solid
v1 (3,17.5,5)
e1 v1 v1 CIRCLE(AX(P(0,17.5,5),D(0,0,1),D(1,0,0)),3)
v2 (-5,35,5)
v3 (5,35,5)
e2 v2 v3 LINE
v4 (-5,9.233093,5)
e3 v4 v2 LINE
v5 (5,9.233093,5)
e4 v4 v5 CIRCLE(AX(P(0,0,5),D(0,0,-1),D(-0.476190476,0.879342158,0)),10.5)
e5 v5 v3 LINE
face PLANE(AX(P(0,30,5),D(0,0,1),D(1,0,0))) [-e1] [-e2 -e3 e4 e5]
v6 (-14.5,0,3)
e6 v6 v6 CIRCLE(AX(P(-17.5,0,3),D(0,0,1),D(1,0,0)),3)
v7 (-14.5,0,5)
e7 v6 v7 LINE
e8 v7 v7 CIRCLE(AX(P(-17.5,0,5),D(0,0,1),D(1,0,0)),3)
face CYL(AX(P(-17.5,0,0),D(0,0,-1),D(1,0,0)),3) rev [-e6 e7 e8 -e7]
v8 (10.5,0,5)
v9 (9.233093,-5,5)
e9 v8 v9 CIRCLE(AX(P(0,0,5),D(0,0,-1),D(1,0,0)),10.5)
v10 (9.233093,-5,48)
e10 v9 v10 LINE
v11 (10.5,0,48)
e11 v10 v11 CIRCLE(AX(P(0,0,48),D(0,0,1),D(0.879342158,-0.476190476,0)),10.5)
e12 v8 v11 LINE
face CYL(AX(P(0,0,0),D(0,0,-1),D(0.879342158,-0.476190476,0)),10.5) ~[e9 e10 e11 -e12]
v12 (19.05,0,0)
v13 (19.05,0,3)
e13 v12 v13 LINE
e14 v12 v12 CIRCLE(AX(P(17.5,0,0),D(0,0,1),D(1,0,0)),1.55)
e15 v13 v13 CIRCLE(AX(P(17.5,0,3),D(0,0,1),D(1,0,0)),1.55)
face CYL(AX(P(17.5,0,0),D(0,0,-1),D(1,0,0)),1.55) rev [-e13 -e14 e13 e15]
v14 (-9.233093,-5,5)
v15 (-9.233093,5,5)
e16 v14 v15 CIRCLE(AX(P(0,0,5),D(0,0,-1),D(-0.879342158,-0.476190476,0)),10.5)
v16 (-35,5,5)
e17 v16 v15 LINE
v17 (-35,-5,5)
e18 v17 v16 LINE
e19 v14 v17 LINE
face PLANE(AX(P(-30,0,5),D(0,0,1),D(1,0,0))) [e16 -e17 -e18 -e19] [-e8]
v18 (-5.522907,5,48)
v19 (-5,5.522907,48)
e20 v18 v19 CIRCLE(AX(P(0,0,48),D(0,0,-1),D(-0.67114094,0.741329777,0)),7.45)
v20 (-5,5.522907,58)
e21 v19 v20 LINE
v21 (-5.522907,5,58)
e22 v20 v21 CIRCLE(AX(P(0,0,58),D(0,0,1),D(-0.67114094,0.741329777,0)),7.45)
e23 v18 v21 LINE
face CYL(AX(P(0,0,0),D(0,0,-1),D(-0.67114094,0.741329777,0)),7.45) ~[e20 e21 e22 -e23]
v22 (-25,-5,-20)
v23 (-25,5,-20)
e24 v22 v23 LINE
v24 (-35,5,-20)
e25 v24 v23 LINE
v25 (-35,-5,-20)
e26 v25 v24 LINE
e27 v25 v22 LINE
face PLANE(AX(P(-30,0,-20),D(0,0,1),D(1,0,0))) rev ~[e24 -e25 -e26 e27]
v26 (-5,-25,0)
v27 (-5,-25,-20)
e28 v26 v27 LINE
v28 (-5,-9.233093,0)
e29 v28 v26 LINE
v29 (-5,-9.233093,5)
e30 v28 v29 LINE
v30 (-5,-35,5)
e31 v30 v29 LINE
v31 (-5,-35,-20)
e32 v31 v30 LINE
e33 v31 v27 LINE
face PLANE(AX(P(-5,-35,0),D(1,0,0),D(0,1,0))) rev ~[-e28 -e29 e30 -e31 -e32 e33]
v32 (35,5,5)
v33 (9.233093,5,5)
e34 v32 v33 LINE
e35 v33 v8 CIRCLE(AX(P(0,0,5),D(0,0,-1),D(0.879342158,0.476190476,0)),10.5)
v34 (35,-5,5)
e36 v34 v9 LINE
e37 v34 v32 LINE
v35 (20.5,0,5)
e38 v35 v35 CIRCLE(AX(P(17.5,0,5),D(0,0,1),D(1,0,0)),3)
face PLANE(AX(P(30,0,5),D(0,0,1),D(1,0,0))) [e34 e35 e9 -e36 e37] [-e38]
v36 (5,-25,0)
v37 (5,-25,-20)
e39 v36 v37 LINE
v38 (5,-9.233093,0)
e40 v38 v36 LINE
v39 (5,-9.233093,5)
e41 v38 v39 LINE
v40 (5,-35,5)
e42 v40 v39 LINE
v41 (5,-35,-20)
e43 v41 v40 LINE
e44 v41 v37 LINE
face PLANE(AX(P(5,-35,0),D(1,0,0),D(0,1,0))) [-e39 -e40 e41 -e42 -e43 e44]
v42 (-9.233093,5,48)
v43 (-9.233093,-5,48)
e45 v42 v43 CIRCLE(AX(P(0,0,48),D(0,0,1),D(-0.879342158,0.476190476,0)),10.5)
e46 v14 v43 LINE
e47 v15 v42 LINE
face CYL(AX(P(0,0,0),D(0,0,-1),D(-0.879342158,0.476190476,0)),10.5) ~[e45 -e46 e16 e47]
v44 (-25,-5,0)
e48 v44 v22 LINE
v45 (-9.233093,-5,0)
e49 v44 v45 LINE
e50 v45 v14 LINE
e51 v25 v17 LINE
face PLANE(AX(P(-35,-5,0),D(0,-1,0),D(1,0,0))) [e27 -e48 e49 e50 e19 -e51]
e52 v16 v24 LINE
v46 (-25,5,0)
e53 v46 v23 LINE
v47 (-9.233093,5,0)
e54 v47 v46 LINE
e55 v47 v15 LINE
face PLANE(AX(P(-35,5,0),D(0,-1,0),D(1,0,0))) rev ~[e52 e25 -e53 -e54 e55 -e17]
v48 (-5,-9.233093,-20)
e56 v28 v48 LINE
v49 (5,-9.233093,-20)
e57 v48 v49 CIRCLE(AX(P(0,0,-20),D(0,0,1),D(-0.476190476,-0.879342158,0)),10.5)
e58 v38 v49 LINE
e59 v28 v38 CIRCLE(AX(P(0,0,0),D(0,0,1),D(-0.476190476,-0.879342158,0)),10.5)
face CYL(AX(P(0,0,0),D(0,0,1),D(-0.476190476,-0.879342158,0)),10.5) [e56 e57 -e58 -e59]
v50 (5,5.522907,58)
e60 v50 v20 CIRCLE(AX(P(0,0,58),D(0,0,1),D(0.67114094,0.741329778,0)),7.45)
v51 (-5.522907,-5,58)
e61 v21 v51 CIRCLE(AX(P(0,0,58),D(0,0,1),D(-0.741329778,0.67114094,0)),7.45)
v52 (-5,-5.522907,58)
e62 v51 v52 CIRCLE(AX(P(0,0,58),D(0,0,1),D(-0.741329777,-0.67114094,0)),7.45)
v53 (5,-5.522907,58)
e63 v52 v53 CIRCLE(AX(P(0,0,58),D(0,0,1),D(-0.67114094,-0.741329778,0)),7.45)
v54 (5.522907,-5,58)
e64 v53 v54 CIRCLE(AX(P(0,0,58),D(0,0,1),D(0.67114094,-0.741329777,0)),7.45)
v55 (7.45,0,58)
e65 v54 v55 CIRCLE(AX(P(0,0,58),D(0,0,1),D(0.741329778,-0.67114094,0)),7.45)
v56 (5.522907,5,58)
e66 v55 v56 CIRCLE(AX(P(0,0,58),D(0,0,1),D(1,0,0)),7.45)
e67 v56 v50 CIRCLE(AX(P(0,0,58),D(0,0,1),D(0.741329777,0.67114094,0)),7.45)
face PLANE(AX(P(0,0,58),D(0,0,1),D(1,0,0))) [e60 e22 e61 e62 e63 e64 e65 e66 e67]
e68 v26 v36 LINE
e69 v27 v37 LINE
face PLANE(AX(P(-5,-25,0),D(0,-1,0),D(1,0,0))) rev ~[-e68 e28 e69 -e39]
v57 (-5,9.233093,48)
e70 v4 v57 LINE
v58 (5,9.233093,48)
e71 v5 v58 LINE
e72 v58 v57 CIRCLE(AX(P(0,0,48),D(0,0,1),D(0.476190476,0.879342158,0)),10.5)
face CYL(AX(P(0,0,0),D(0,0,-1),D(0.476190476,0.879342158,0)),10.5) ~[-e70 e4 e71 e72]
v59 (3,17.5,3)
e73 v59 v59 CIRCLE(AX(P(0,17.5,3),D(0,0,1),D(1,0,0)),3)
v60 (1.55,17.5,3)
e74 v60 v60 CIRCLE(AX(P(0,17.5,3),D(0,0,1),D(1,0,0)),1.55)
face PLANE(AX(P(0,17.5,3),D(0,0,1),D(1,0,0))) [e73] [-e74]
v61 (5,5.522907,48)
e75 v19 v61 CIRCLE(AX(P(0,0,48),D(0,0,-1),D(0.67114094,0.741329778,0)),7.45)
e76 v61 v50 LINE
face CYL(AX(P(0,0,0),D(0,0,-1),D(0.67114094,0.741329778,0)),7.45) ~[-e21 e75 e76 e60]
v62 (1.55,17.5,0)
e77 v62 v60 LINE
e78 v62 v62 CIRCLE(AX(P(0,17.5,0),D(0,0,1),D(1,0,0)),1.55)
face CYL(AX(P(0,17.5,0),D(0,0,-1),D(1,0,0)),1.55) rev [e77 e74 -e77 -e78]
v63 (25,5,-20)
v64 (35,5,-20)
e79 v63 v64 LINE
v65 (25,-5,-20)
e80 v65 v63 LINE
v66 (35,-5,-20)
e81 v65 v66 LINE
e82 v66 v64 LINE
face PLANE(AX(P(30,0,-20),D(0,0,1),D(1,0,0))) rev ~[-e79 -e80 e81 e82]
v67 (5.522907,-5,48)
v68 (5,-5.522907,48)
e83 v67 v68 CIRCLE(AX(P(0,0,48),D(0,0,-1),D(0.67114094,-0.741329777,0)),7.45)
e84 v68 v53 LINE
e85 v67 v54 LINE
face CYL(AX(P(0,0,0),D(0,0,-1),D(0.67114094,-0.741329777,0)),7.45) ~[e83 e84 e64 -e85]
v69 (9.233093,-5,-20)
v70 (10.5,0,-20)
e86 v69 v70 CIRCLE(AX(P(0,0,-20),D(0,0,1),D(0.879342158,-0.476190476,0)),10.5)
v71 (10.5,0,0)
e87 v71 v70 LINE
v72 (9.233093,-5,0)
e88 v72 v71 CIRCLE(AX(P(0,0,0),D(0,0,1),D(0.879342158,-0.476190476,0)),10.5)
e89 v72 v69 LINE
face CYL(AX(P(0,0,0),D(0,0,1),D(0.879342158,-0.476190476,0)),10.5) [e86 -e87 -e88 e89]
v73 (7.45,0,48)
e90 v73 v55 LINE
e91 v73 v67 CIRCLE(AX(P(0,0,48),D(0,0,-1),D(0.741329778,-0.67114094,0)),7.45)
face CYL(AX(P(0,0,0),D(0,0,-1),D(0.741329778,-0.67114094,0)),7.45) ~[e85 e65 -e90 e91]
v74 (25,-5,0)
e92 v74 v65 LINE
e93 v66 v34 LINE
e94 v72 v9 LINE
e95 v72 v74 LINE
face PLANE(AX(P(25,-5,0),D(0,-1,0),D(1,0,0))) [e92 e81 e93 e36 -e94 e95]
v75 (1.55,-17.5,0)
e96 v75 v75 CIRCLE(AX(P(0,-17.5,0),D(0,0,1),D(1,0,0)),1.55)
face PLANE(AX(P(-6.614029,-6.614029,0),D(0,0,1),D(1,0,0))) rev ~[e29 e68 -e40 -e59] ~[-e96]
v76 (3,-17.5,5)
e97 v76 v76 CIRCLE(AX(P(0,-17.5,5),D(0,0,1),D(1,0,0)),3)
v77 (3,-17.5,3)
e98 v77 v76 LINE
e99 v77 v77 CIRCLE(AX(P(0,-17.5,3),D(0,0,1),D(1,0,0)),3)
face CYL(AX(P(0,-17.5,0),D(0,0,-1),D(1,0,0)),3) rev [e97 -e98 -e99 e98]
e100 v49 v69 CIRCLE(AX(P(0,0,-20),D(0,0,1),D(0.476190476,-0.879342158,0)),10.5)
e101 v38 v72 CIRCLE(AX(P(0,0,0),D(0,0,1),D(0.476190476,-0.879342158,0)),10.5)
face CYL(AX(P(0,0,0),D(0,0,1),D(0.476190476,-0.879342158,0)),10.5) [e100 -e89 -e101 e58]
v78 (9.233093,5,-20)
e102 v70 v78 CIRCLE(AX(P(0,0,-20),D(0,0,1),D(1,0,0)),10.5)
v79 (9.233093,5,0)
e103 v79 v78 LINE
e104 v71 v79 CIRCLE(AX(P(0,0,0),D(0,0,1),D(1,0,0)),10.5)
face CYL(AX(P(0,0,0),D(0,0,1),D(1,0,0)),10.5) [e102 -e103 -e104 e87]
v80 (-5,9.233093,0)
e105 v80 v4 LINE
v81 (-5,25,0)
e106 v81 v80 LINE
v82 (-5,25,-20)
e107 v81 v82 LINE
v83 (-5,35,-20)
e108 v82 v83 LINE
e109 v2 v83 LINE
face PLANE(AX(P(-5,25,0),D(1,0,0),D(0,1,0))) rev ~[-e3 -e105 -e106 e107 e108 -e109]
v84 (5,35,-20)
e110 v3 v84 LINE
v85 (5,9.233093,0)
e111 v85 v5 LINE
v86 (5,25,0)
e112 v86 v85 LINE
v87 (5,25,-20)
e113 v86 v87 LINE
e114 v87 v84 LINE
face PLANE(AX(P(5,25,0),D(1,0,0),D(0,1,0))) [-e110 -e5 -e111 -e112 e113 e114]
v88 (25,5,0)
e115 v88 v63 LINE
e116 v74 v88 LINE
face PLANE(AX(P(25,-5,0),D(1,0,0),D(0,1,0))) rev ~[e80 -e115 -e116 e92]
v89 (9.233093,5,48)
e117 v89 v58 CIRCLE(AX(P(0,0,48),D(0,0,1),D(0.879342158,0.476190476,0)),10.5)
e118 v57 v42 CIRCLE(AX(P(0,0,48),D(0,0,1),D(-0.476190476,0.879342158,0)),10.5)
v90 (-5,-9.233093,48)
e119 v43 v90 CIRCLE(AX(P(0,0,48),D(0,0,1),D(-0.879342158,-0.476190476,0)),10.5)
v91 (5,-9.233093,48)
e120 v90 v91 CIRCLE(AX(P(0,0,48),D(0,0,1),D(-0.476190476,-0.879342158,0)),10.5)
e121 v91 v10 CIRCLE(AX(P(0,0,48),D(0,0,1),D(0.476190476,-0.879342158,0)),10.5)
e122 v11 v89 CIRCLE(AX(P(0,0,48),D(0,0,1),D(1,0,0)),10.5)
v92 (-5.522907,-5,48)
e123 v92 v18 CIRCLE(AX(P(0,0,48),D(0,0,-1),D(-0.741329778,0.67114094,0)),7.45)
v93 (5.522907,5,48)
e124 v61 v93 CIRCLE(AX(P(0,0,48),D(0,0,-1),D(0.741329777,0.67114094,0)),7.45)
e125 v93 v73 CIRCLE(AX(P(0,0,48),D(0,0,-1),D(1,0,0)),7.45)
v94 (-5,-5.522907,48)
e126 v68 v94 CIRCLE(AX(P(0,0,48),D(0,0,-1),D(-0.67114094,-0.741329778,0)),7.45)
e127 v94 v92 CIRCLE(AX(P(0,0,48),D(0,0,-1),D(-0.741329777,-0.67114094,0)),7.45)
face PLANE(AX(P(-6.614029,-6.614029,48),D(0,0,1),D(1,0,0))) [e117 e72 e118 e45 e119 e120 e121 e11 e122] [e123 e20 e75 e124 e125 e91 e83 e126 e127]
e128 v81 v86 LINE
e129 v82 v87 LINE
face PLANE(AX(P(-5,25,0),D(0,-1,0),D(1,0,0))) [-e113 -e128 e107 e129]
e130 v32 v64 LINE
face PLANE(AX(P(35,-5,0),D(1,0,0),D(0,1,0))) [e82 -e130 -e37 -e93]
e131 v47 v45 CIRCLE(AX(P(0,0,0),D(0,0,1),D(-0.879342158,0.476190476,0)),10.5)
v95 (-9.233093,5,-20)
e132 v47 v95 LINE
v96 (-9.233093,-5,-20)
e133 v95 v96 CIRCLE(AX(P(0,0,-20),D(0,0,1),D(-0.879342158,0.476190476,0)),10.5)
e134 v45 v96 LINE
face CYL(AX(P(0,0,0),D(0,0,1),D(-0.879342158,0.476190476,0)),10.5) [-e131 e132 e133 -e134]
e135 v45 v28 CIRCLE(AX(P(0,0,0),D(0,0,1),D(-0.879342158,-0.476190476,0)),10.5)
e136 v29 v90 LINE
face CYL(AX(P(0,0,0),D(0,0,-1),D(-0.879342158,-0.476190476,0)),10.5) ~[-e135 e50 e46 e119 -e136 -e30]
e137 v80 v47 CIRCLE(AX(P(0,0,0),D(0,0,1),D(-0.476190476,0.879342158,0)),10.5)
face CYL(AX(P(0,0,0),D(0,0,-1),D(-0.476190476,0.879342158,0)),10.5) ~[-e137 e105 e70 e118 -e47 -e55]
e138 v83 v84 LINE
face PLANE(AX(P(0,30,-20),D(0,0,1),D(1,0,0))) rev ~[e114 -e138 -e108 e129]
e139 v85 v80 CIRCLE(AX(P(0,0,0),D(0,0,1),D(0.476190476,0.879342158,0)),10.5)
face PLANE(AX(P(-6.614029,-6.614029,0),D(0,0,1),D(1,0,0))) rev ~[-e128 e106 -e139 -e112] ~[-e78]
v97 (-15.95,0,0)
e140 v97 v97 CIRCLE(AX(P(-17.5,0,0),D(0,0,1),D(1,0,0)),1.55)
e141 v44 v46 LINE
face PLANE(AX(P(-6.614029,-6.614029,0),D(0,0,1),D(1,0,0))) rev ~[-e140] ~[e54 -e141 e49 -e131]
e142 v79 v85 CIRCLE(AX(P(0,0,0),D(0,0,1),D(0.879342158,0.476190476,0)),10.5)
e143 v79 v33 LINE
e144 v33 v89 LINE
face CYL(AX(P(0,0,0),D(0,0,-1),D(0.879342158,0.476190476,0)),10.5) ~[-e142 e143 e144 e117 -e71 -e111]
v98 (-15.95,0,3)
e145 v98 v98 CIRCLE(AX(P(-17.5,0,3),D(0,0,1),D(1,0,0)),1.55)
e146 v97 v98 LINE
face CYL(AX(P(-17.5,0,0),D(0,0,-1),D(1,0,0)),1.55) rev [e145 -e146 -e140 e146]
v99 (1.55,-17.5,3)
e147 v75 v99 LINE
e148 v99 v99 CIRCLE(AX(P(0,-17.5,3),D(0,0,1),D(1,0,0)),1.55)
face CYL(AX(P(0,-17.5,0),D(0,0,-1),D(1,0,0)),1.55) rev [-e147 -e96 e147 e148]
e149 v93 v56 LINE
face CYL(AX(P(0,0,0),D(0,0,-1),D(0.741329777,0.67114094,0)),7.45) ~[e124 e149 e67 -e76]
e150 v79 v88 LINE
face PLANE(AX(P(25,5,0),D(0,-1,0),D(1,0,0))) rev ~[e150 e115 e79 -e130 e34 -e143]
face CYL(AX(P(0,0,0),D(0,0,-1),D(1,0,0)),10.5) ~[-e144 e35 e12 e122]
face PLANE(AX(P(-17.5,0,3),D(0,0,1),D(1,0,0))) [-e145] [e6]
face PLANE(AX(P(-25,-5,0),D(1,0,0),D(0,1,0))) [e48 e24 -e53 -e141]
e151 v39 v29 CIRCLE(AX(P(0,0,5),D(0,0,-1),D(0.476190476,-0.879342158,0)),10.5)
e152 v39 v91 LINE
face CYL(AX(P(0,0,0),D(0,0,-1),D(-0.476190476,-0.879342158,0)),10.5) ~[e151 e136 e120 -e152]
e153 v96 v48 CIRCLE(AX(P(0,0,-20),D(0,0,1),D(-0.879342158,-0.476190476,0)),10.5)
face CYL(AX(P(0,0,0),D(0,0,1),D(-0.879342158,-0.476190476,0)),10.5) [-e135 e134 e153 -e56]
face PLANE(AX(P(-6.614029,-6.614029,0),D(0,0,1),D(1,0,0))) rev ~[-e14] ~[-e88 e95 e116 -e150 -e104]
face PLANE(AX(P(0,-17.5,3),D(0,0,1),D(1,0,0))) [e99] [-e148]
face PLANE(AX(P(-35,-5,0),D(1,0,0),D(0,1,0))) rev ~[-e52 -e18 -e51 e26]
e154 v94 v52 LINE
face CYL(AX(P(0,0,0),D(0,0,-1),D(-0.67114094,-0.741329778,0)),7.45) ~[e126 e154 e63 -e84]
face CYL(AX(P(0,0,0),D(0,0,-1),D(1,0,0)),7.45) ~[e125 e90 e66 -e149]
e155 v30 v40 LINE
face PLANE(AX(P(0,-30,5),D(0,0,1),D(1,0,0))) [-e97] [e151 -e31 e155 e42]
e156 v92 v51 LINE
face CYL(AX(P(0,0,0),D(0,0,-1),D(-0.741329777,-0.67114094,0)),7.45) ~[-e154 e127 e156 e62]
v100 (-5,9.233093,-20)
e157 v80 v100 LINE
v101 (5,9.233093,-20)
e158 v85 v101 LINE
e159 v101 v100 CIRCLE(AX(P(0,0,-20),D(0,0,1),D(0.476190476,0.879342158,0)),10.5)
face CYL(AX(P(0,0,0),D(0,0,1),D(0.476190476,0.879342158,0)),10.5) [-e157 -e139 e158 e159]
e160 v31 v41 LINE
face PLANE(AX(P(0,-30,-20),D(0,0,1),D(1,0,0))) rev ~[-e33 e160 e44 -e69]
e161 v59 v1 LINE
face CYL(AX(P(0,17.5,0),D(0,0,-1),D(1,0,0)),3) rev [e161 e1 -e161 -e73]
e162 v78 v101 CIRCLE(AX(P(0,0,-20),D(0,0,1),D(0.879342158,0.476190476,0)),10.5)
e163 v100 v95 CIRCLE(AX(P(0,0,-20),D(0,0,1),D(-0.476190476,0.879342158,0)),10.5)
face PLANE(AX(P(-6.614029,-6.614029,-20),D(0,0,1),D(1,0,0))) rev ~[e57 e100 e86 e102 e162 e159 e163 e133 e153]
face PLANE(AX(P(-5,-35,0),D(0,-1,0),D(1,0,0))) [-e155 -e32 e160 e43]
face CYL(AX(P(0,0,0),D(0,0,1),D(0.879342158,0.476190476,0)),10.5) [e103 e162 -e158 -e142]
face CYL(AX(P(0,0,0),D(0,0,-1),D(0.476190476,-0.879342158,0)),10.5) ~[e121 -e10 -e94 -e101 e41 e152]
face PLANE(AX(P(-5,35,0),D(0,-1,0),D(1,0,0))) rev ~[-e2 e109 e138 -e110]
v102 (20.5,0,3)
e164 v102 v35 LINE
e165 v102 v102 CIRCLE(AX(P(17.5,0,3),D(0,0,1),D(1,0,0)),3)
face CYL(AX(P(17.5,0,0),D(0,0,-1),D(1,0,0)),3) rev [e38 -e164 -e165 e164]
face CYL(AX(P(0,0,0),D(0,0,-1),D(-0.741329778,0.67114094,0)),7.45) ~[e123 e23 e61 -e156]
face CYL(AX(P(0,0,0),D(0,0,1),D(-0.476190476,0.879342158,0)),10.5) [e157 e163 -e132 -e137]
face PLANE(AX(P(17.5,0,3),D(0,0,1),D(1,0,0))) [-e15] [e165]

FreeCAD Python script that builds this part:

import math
import FreeCAD as App
import Part
import Sketcher
from FreeCAD import Vector

doc = App.newDocument("Part")
params = doc.addObject("Spreadsheet::Sheet", "Params")
for row, (alias, value) in enumerate([
    ("sketch1_diameter", "6 mm"),
    ("sketch1_radius", "10.5 mm"),
    ("sketch1_height", "10 mm"),
    ("pad1_length", "5 mm"),
    ("sketch2_diameter", "6 mm"),
    ("sketch2_diameter2", "3.1 mm"),
    ("pad2_length", "3 mm"),
    ("sketch3_width", "10 mm"),
    ("pad3_length", "5 mm"),
    ("pad3_length2", "20 mm"),
    ("sketch4_diameter", "6 mm"),
    ("sketch4_radius", "10.5 mm"),
    ("sketch4_width", "10 mm"),
    ("pad4_length", "5 mm"),
    ("sketch5_diameter", "6 mm"),
    ("sketch5_diameter2", "3.1 mm"),
    ("pad5_length", "3 mm"),
    ("sketch6_width", "10 mm"),
    ("pad6_length", "5 mm"),
    ("pad6_length2", "20 mm"),
    ("sketch7_diameter", "6 mm"),
    ("sketch7_radius", "10.5 mm"),
    ("sketch7_height", "10 mm"),
    ("pad7_length", "5 mm"),
    ("sketch8_diameter", "6 mm"),
    ("sketch8_diameter2", "3.1 mm"),
    ("pad8_length", "3 mm"),
    ("sketch9_width", "10 mm"),
    ("pad9_length", "5 mm"),
    ("pad9_length2", "20 mm"),
    ("sketch10_diameter", "6 mm"),
    ("sketch10_radius", "10.5 mm"),
    ("sketch10_width", "10 mm"),
    ("pad10_length", "5 mm"),
    ("sketch11_diameter", "6 mm"),
    ("sketch11_diameter2", "3.1 mm"),
    ("pad11_length", "3 mm"),
    ("sketch12_width", "10 mm"),
    ("pad12_length", "5 mm"),
    ("pad12_length2", "20 mm"),
    ("sketch13_radius", "10.5 mm"),
    ("pad13_length", "48 mm"),
    ("pad13_length2", "20 mm"),
    ("sketch14_radius", "7.45 mm"),
    ("pad14_length", "58 mm"),
], start=1):
    params.set(f"A{row}", alias)
    params.set(f"B{row}", "=" + value)
    params.setAlias(f"B{row}", alias)

body = doc.addObject("PartDesign::Body", "Body")

# Sketch on XY plane
sketch1 = doc.addObject("Sketcher::SketchObject", "Sketch")
body.addObject(sketch1)
sketch1.AttachmentSupport = (doc.XY_Plane, [""])
sketch1.MapMode = "FlatFace"
sketch1.addGeometry(Part.ArcOfCircle(Part.Circle(Vector(0, 0, 0), Vector(0, 0, 1), 10.5), math.radians(152), math.radians(208)), False)
sketch1.addGeometry(Part.LineSegment(Vector(-9.2, 5, 0), Vector(-25, 5, 0)), False)
sketch1.addGeometry(Part.LineSegment(Vector(-25, 5, 0), Vector(-25, -5, 0)), False)
sketch1.addGeometry(Part.LineSegment(Vector(-25, -5, 0), Vector(-9.2, -5, 0)), False)
sketch1.addGeometry(Part.Circle(Vector(-17.5, 0, 0), Vector(0, 0, 1), 3), False)
sketch1.addConstraint(Sketcher.Constraint("Coincident", 0, 1, 1, 1))
sketch1.addConstraint(Sketcher.Constraint("Coincident", 1, 2, 2, 1))
sketch1.addConstraint(Sketcher.Constraint("Coincident", 2, 2, 3, 1))
sketch1.addConstraint(Sketcher.Constraint("Coincident", 3, 2, 0, 2))
sketch1.addConstraint(Sketcher.Constraint("Horizontal", 1))
sketch1.addConstraint(Sketcher.Constraint("Vertical", 2))
sketch1.addConstraint(Sketcher.Constraint("Horizontal", 3))
sketch1.addConstraint(Sketcher.Constraint("Coincident", 0, 3, -1, 1))
sketch1.addConstraint(Sketcher.Constraint("PointOnObject", 4, 3, -1))
sketch1.addConstraint(Sketcher.Constraint("Vertical", 0, 1, 3, 2))
sketch1.addConstraint(Sketcher.Constraint("Diameter", 4, 6.0))
sketch1.addConstraint(Sketcher.Constraint("Radius", 0, 10.5))
sketch1.addConstraint(Sketcher.Constraint("DistanceY", 2, 2, 2, 1, 10.0))
sketch1.addConstraint(Sketcher.Constraint("DistanceX", 1, 2, -1, 1, 25.0))
sketch1.addConstraint(Sketcher.Constraint("DistanceX", 4, 3, -1, 1, 17.5))
sketch1.setExpression("Constraints[10]", "Params.sketch1_diameter")
sketch1.setExpression("Constraints[11]", "Params.sketch1_radius")
sketch1.setExpression("Constraints[12]", "Params.sketch1_height")
pad1 = doc.addObject("PartDesign::Pad", "Pad")
body.addObject(pad1)
pad1.Profile = sketch1
pad1.setExpression("Length", "Params.pad1_length")

# Sketch on XY plane
sketch2 = doc.addObject("Sketcher::SketchObject", "Sketch001")
body.addObject(sketch2)
sketch2.AttachmentSupport = (doc.XY_Plane, [""])
sketch2.MapMode = "FlatFace"
sketch2.addGeometry(Part.Circle(Vector(-17.5, 0, 0), Vector(0, 0, 1), 3), False)
sketch2.addGeometry(Part.Circle(Vector(-17.5, 0, 0), Vector(0, 0, 1), 1.6), False)
sketch2.addConstraint(Sketcher.Constraint("Coincident", 1, 3, 0, 3))
sketch2.addConstraint(Sketcher.Constraint("PointOnObject", 0, 3, -1))
sketch2.addConstraint(Sketcher.Constraint("Diameter", 0, 6.0))
sketch2.addConstraint(Sketcher.Constraint("Diameter", 1, 3.1))
sketch2.addConstraint(Sketcher.Constraint("DistanceX", 0, 3, -1, 1, 17.5))
sketch2.setExpression("Constraints[2]", "Params.sketch2_diameter")
sketch2.setExpression("Constraints[3]", "Params.sketch2_diameter2")
pad2 = doc.addObject("PartDesign::Pad", "Pad001")
body.addObject(pad2)
pad2.Profile = sketch2
pad2.setExpression("Length", "Params.pad2_length")

# Sketch on XY plane
sketch3 = doc.addObject("Sketcher::SketchObject", "Sketch002")
body.addObject(sketch3)
sketch3.AttachmentSupport = (doc.XY_Plane, [""])
sketch3.MapMode = "FlatFace"
sketch3.addGeometry(Part.LineSegment(Vector(-35, 5, 0), Vector(-35, -5, 0)), False)
sketch3.addGeometry(Part.LineSegment(Vector(-35, -5, 0), Vector(-25, -5, 0)), False)
sketch3.addGeometry(Part.LineSegment(Vector(-25, -5, 0), Vector(-25, 5, 0)), False)
sketch3.addGeometry(Part.LineSegment(Vector(-25, 5, 0), Vector(-35, 5, 0)), False)
sketch3.addConstraint(Sketcher.Constraint("Coincident", 0, 2, 1, 1))
sketch3.addConstraint(Sketcher.Constraint("Coincident", 1, 2, 2, 1))
sketch3.addConstraint(Sketcher.Constraint("Coincident", 2, 2, 3, 1))
sketch3.addConstraint(Sketcher.Constraint("Coincident", 3, 2, 0, 1))
sketch3.addConstraint(Sketcher.Constraint("Vertical", 0))
sketch3.addConstraint(Sketcher.Constraint("Horizontal", 1))
sketch3.addConstraint(Sketcher.Constraint("Vertical", 2))
sketch3.addConstraint(Sketcher.Constraint("Horizontal", 3))
sketch3.addConstraint(Sketcher.Constraint("Equal", 3, 0))
sketch3.addConstraint(Sketcher.Constraint("DistanceX", 1, 1, 1, 2, 10.0))
sketch3.addConstraint(Sketcher.Constraint("DistanceX", 0, 2, -1, 1, 35.0))
sketch3.addConstraint(Sketcher.Constraint("DistanceY", 0, 2, -1, 1, 5.0))
sketch3.setExpression("Constraints[9]", "Params.sketch3_width")
pad3 = doc.addObject("PartDesign::Pad", "Pad002")
body.addObject(pad3)
pad3.Profile = sketch3
pad3.Type = "TwoLengths"
pad3.setExpression("Length", "Params.pad3_length")
pad3.setExpression("Length2", "Params.pad3_length2")
body2 = doc.addObject("PartDesign::Body", "Body001")

# Sketch on XY plane
sketch4 = doc.addObject("Sketcher::SketchObject", "Sketch003")
body2.addObject(sketch4)
sketch4.AttachmentSupport = (doc.getObject("XY_Plane001"), [""])
sketch4.MapMode = "FlatFace"
sketch4.addGeometry(Part.ArcOfCircle(Part.Circle(Vector(0, 0, 0), Vector(0, 0, 1), 10.5), math.radians(62), math.radians(118)), False)
sketch4.addGeometry(Part.LineSegment(Vector(5, 9.2, 0), Vector(5, 25, 0)), False)
sketch4.addGeometry(Part.LineSegment(Vector(5, 25, 0), Vector(-5, 25, 0)), False)
sketch4.addGeometry(Part.LineSegment(Vector(-5, 25, 0), Vector(-5, 9.2, 0)), False)
sketch4.addGeometry(Part.Circle(Vector(0, 17.5, 0), Vector(0, 0, 1), 3), False)
sketch4.addConstraint(Sketcher.Constraint("Coincident", 0, 1, 1, 1))
sketch4.addConstraint(Sketcher.Constraint("Coincident", 1, 2, 2, 1))
sketch4.addConstraint(Sketcher.Constraint("Coincident", 2, 2, 3, 1))
sketch4.addConstraint(Sketcher.Constraint("Coincident", 3, 2, 0, 2))
sketch4.addConstraint(Sketcher.Constraint("Vertical", 1))
sketch4.addConstraint(Sketcher.Constraint("Horizontal", 2))
sketch4.addConstraint(Sketcher.Constraint("Vertical", 3))
sketch4.addConstraint(Sketcher.Constraint("Coincident", 0, 3, -1, 1))
sketch4.addConstraint(Sketcher.Constraint("PointOnObject", 4, 3, -2))
sketch4.addConstraint(Sketcher.Constraint("Horizontal", 0, 1, 3, 2))
sketch4.addConstraint(Sketcher.Constraint("Diameter", 4, 6.0))
sketch4.addConstraint(Sketcher.Constraint("Radius", 0, 10.5))
sketch4.addConstraint(Sketcher.Constraint("DistanceX", 2, 2, 2, 1, 10.0))
sketch4.addConstraint(Sketcher.Constraint("DistanceY", -1, 1, 1, 2, 25.0))
sketch4.addConstraint(Sketcher.Constraint("DistanceY", -1, 1, 4, 3, 17.5))
sketch4.setExpression("Constraints[10]", "Params.sketch4_diameter")
sketch4.setExpression("Constraints[11]", "Params.sketch4_radius")
sketch4.setExpression("Constraints[12]", "Params.sketch4_width")
pad4 = doc.addObject("PartDesign::Pad", "Pad003")
body2.addObject(pad4)
pad4.Profile = sketch4
pad4.setExpression("Length", "Params.pad4_length")

# Sketch on XY plane
sketch5 = doc.addObject("Sketcher::SketchObject", "Sketch004")
body2.addObject(sketch5)
sketch5.AttachmentSupport = (doc.getObject("XY_Plane001"), [""])
sketch5.MapMode = "FlatFace"
sketch5.addGeometry(Part.Circle(Vector(0, 17.5, 0), Vector(0, 0, 1), 3), False)
sketch5.addGeometry(Part.Circle(Vector(0, 17.5, 0), Vector(0, 0, 1), 1.6), False)
sketch5.addConstraint(Sketcher.Constraint("Coincident", 1, 3, 0, 3))
sketch5.addConstraint(Sketcher.Constraint("PointOnObject", 0, 3, -2))
sketch5.addConstraint(Sketcher.Constraint("Diameter", 0, 6.0))
sketch5.addConstraint(Sketcher.Constraint("Diameter", 1, 3.1))
sketch5.addConstraint(Sketcher.Constraint("DistanceY", -1, 1, 0, 3, 17.5))
sketch5.setExpression("Constraints[2]", "Params.sketch5_diameter")
sketch5.setExpression("Constraints[3]", "Params.sketch5_diameter2")
pad5 = doc.addObject("PartDesign::Pad", "Pad004")
body2.addObject(pad5)
pad5.Profile = sketch5
pad5.setExpression("Length", "Params.pad5_length")

# Sketch on XY plane
sketch6 = doc.addObject("Sketcher::SketchObject", "Sketch005")
body2.addObject(sketch6)
sketch6.AttachmentSupport = (doc.getObject("XY_Plane001"), [""])
sketch6.MapMode = "FlatFace"
sketch6.addGeometry(Part.LineSegment(Vector(-5, 35, 0), Vector(-5, 25, 0)), False)
sketch6.addGeometry(Part.LineSegment(Vector(-5, 25, 0), Vector(5, 25, 0)), False)
sketch6.addGeometry(Part.LineSegment(Vector(5, 25, 0), Vector(5, 35, 0)), False)
sketch6.addGeometry(Part.LineSegment(Vector(5, 35, 0), Vector(-5, 35, 0)), False)
sketch6.addConstraint(Sketcher.Constraint("Coincident", 0, 2, 1, 1))
sketch6.addConstraint(Sketcher.Constraint("Coincident", 1, 2, 2, 1))
sketch6.addConstraint(Sketcher.Constraint("Coincident", 2, 2, 3, 1))
sketch6.addConstraint(Sketcher.Constraint("Coincident", 3, 2, 0, 1))
sketch6.addConstraint(Sketcher.Constraint("Vertical", 0))
sketch6.addConstraint(Sketcher.Constraint("Horizontal", 1))
sketch6.addConstraint(Sketcher.Constraint("Vertical", 2))
sketch6.addConstraint(Sketcher.Constraint("Horizontal", 3))
sketch6.addConstraint(Sketcher.Constraint("Equal", 3, 0))
sketch6.addConstraint(Sketcher.Constraint("DistanceX", 1, 1, 1, 2, 10.0))
sketch6.addConstraint(Sketcher.Constraint("DistanceX", 0, 2, -1, 1, 5.0))
sketch6.addConstraint(Sketcher.Constraint("DistanceY", -1, 1, 0, 2, 25.0))
sketch6.setExpression("Constraints[9]", "Params.sketch6_width")
pad6 = doc.addObject("PartDesign::Pad", "Pad005")
body2.addObject(pad6)
pad6.Profile = sketch6
pad6.Type = "TwoLengths"
pad6.setExpression("Length", "Params.pad6_length")
pad6.setExpression("Length2", "Params.pad6_length2")
body3 = doc.addObject("PartDesign::Body", "Body002")

# Sketch on XY plane
sketch7 = doc.addObject("Sketcher::SketchObject", "Sketch006")
body3.addObject(sketch7)
sketch7.AttachmentSupport = (doc.getObject("XY_Plane002"), [""])
sketch7.MapMode = "FlatFace"
sketch7.addGeometry(Part.LineSegment(Vector(25, 5, 0), Vector(9.2, 5, 0)), False)
sketch7.addGeometry(Part.ArcOfCircle(Part.Circle(Vector(0, 0, 0), Vector(0, 0, 1), 10.5), math.radians(0), math.radians(28)), False)
sketch7.addGeometry(Part.ArcOfCircle(Part.Circle(Vector(0, 0, 0), Vector(0, 0, 1), 10.5), math.radians(-28), math.radians(0)), False)
sketch7.addGeometry(Part.LineSegment(Vector(9.2, -5, 0), Vector(25, -5, 0)), False)
sketch7.addGeometry(Part.LineSegment(Vector(25, -5, 0), Vector(25, 5, 0)), False)
sketch7.addGeometry(Part.Circle(Vector(17.5, 0, 0), Vector(0, 0, 1), 3), False)
sketch7.addConstraint(Sketcher.Constraint("Coincident", 0, 2, 1, 2))
sketch7.addConstraint(Sketcher.Constraint("Tangent", 1, 1, 2, 2))
sketch7.addConstraint(Sketcher.Constraint("Coincident", 2, 1, 3, 1))
sketch7.addConstraint(Sketcher.Constraint("Coincident", 3, 2, 4, 1))
sketch7.addConstraint(Sketcher.Constraint("Coincident", 4, 2, 0, 1))
sketch7.addConstraint(Sketcher.Constraint("Horizontal", 0))
sketch7.addConstraint(Sketcher.Constraint("Horizontal", 3))
sketch7.addConstraint(Sketcher.Constraint("Vertical", 4))
sketch7.addConstraint(Sketcher.Constraint("Coincident", 1, 3, -1, 1))
sketch7.addConstraint(Sketcher.Constraint("Equal", 1, 2))
sketch7.addConstraint(Sketcher.Constraint("PointOnObject", 5, 3, -1))
sketch7.addConstraint(Sketcher.Constraint("PointOnObject", 1, 1, -1))
sketch7.addConstraint(Sketcher.Constraint("Vertical", 0, 2, 2, 1))
sketch7.addConstraint(Sketcher.Constraint("Diameter", 5, 6.0))
sketch7.addConstraint(Sketcher.Constraint("Radius", 1, 10.5))
sketch7.addConstraint(Sketcher.Constraint("DistanceY", 4, 1, 4, 2, 10.0))
sketch7.addConstraint(Sketcher.Constraint("DistanceX", -1, 1, 3, 2, 25.0))
sketch7.addConstraint(Sketcher.Constraint("DistanceX", 1, 1, 5, 3, 7.0))
sketch7.setExpression("Constraints[13]", "Params.sketch7_diameter")
sketch7.setExpression("Constraints[14]", "Params.sketch7_radius")
sketch7.setExpression("Constraints[15]", "Params.sketch7_height")
pad7 = doc.addObject("PartDesign::Pad", "Pad006")
body3.addObject(pad7)
pad7.Profile = sketch7
pad7.setExpression("Length", "Params.pad7_length")

# Sketch on XY plane
sketch8 = doc.addObject("Sketcher::SketchObject", "Sketch007")
body3.addObject(sketch8)
sketch8.AttachmentSupport = (doc.getObject("XY_Plane002"), [""])
sketch8.MapMode = "FlatFace"
sketch8.addGeometry(Part.Circle(Vector(17.5, 0, 0), Vector(0, 0, 1), 3), False)
sketch8.addGeometry(Part.Circle(Vector(17.5, 0, 0), Vector(0, 0, 1), 1.6), False)
sketch8.addConstraint(Sketcher.Constraint("Coincident", 1, 3, 0, 3))
sketch8.addConstraint(Sketcher.Constraint("PointOnObject", 0, 3, -1))
sketch8.addConstraint(Sketcher.Constraint("Diameter", 0, 6.0))
sketch8.addConstraint(Sketcher.Constraint("Diameter", 1, 3.1))
sketch8.addConstraint(Sketcher.Constraint("DistanceX", -1, 1, 0, 3, 17.5))
sketch8.setExpression("Constraints[2]", "Params.sketch8_diameter")
sketch8.setExpression("Constraints[3]", "Params.sketch8_diameter2")
pad8 = doc.addObject("PartDesign::Pad", "Pad007")
body3.addObject(pad8)
pad8.Profile = sketch8
pad8.setExpression("Length", "Params.pad8_length")

# Sketch on XY plane
sketch9 = doc.addObject("Sketcher::SketchObject", "Sketch008")
body3.addObject(sketch9)
sketch9.AttachmentSupport = (doc.getObject("XY_Plane002"), [""])
sketch9.MapMode = "FlatFace"
sketch9.addGeometry(Part.LineSegment(Vector(25, 5, 0), Vector(25, -5, 0)), False)
sketch9.addGeometry(Part.LineSegment(Vector(25, -5, 0), Vector(35, -5, 0)), False)
sketch9.addGeometry(Part.LineSegment(Vector(35, -5, 0), Vector(35, 5, 0)), False)
sketch9.addGeometry(Part.LineSegment(Vector(35, 5, 0), Vector(25, 5, 0)), False)
sketch9.addConstraint(Sketcher.Constraint("Coincident", 0, 2, 1, 1))
sketch9.addConstraint(Sketcher.Constraint("Coincident", 1, 2, 2, 1))
sketch9.addConstraint(Sketcher.Constraint("Coincident", 2, 2, 3, 1))
sketch9.addConstraint(Sketcher.Constraint("Coincident", 3, 2, 0, 1))
sketch9.addConstraint(Sketcher.Constraint("Vertical", 0))
sketch9.addConstraint(Sketcher.Constraint("Horizontal", 1))
sketch9.addConstraint(Sketcher.Constraint("Vertical", 2))
sketch9.addConstraint(Sketcher.Constraint("Horizontal", 3))
sketch9.addConstraint(Sketcher.Constraint("Equal", 3, 0))
sketch9.addConstraint(Sketcher.Constraint("DistanceX", 1, 1, 1, 2, 10.0))
sketch9.addConstraint(Sketcher.Constraint("DistanceX", -1, 1, 0, 2, 25.0))
sketch9.addConstraint(Sketcher.Constraint("DistanceY", 0, 2, -1, 1, 5.0))
sketch9.setExpression("Constraints[9]", "Params.sketch9_width")
pad9 = doc.addObject("PartDesign::Pad", "Pad008")
body3.addObject(pad9)
pad9.Profile = sketch9
pad9.Type = "TwoLengths"
pad9.setExpression("Length", "Params.pad9_length")
pad9.setExpression("Length2", "Params.pad9_length2")
body4 = doc.addObject("PartDesign::Body", "Body003")

# Sketch on XY plane
sketch10 = doc.addObject("Sketcher::SketchObject", "Sketch009")
body4.addObject(sketch10)
sketch10.AttachmentSupport = (doc.getObject("XY_Plane003"), [""])
sketch10.MapMode = "FlatFace"
sketch10.addGeometry(Part.LineSegment(Vector(5, -25, 0), Vector(5, -9.2, 0)), False)
sketch10.addGeometry(Part.ArcOfCircle(Part.Circle(Vector(0, 0, 0), Vector(0, 0, 1), 10.5), math.radians(-118), math.radians(-62)), False)
sketch10.addGeometry(Part.LineSegment(Vector(-5, -9.2, 0), Vector(-5, -25, 0)), False)
sketch10.addGeometry(Part.LineSegment(Vector(-5, -25, 0), Vector(5, -25, 0)), False)
sketch10.addGeometry(Part.Circle(Vector(0, -17.5, 0), Vector(0, 0, 1), 3), False)
sketch10.addConstraint(Sketcher.Constraint("Coincident", 0, 2, 1, 2))
sketch10.addConstraint(Sketcher.Constraint("Coincident", 1, 1, 2, 1))
sketch10.addConstraint(Sketcher.Constraint("Coincident", 2, 2, 3, 1))
sketch10.addConstraint(Sketcher.Constraint("Coincident", 3, 2, 0, 1))
sketch10.addConstraint(Sketcher.Constraint("Vertical", 0))
sketch10.addConstraint(Sketcher.Constraint("Vertical", 2))
sketch10.addConstraint(Sketcher.Constraint("Horizontal", 3))
sketch10.addConstraint(Sketcher.Constraint("Coincident", 1, 3, -1, 1))
sketch10.addConstraint(Sketcher.Constraint("PointOnObject", 4, 3, -2))
sketch10.addConstraint(Sketcher.Constraint("Horizontal", 0, 2, 1, 1))
sketch10.addConstraint(Sketcher.Constraint("Diameter", 4, 6.0))
sketch10.addConstraint(Sketcher.Constraint("Radius", 1, 10.5))
sketch10.addConstraint(Sketcher.Constraint("DistanceX", 3, 1, 3, 2, 10.0))
sketch10.addConstraint(Sketcher.Constraint("DistanceY", 2, 2, -1, 1, 25.0))
sketch10.addConstraint(Sketcher.Constraint("DistanceY", 4, 3, -1, 1, 17.5))
sketch10.setExpression("Constraints[10]", "Params.sketch10_diameter")
sketch10.setExpression("Constraints[11]", "Params.sketch10_radius")
sketch10.setExpression("Constraints[12]", "Params.sketch10_width")
pad10 = doc.addObject("PartDesign::Pad", "Pad009")
body4.addObject(pad10)
pad10.Profile = sketch10
pad10.setExpression("Length", "Params.pad10_length")

# Sketch on XY plane
sketch11 = doc.addObject("Sketcher::SketchObject", "Sketch010")
body4.addObject(sketch11)
sketch11.AttachmentSupport = (doc.getObject("XY_Plane003"), [""])
sketch11.MapMode = "FlatFace"
sketch11.addGeometry(Part.Circle(Vector(0, -17.5, 0), Vector(0, 0, 1), 3), False)
sketch11.addGeometry(Part.Circle(Vector(0, -17.5, 0), Vector(0, 0, 1), 1.6), False)
sketch11.addConstraint(Sketcher.Constraint("Coincident", 1, 3, 0, 3))
sketch11.addConstraint(Sketcher.Constraint("PointOnObject", 0, 3, -2))
sketch11.addConstraint(Sketcher.Constraint("Diameter", 0, 6.0))
sketch11.addConstraint(Sketcher.Constraint("Diameter", 1, 3.1))
sketch11.addConstraint(Sketcher.Constraint("DistanceY", 0, 3, -1, 1, 17.5))
sketch11.setExpression("Constraints[2]", "Params.sketch11_diameter")
sketch11.setExpression("Constraints[3]", "Params.sketch11_diameter2")
pad11 = doc.addObject("PartDesign::Pad", "Pad010")
body4.addObject(pad11)
pad11.Profile = sketch11
pad11.setExpression("Length", "Params.pad11_length")

# Sketch on XY plane
sketch12 = doc.addObject("Sketcher::SketchObject", "Sketch011")
body4.addObject(sketch12)
sketch12.AttachmentSupport = (doc.getObject("XY_Plane003"), [""])
sketch12.MapMode = "FlatFace"
sketch12.addGeometry(Part.LineSegment(Vector(-5, -25, 0), Vector(-5, -35, 0)), False)
sketch12.addGeometry(Part.LineSegment(Vector(-5, -35, 0), Vector(5, -35, 0)), False)
sketch12.addGeometry(Part.LineSegment(Vector(5, -35, 0), Vector(5, -25, 0)), False)
sketch12.addGeometry(Part.LineSegment(Vector(5, -25, 0), Vector(-5, -25, 0)), False)
sketch12.addConstraint(Sketcher.Constraint("Coincident", 0, 2, 1, 1))
sketch12.addConstraint(Sketcher.Constraint("Coincident", 1, 2, 2, 1))
sketch12.addConstraint(Sketcher.Constraint("Coincident", 2, 2, 3, 1))
sketch12.addConstraint(Sketcher.Constraint("Coincident", 3, 2, 0, 1))
sketch12.addConstraint(Sketcher.Constraint("Vertical", 0))
sketch12.addConstraint(Sketcher.Constraint("Horizontal", 1))
sketch12.addConstraint(Sketcher.Constraint("Vertical", 2))
sketch12.addConstraint(Sketcher.Constraint("Horizontal", 3))
sketch12.addConstraint(Sketcher.Constraint("Equal", 3, 0))
sketch12.addConstraint(Sketcher.Constraint("DistanceX", 1, 1, 1, 2, 10.0))
sketch12.addConstraint(Sketcher.Constraint("DistanceX", 0, 2, -1, 1, 5.0))
sketch12.addConstraint(Sketcher.Constraint("DistanceY", 0, 2, -1, 1, 35.0))
sketch12.setExpression("Constraints[9]", "Params.sketch12_width")
pad12 = doc.addObject("PartDesign::Pad", "Pad011")
body4.addObject(pad12)
pad12.Profile = sketch12
pad12.Type = "TwoLengths"
pad12.setExpression("Length", "Params.pad12_length")
pad12.setExpression("Length2", "Params.pad12_length2")
body.AllowCompound = True
doc.recompute()

boolean = doc.addObject("PartDesign::Boolean", "Boolean")
body.addObject(boolean)
boolean.Type = "Fuse"
boolean.addObjects([body2])
doc.recompute()

boolean2 = doc.addObject("PartDesign::Boolean", "Boolean001")
body.addObject(boolean2)
boolean2.Type = "Fuse"
boolean2.addObjects([body3])
doc.recompute()

boolean3 = doc.addObject("PartDesign::Boolean", "Boolean002")
body.addObject(boolean3)
boolean3.Type = "Fuse"
boolean3.addObjects([body4])

# Sketch on XY plane
sketch13 = doc.addObject("Sketcher::SketchObject", "Sketch012")
body.addObject(sketch13)
sketch13.AttachmentSupport = (doc.XY_Plane, [""])
sketch13.MapMode = "FlatFace"
sketch13.addGeometry(Part.ArcOfCircle(Part.Circle(Vector(0, 0, 0), Vector(0, 0, 1), 10), math.radians(152), math.radians(208)), False)
sketch13.addGeometry(Part.ArcOfCircle(Part.Circle(Vector(0, 0, 0), Vector(0, 0, 1), 10), math.radians(-152), math.radians(-118)), False)
sketch13.addGeometry(Part.ArcOfCircle(Part.Circle(Vector(0, 0, 0), Vector(0, 0, 1), 10), math.radians(-118), math.radians(-62)), False)
sketch13.addGeometry(Part.ArcOfCircle(Part.Circle(Vector(0, 0, 0), Vector(0, 0, 1), 10), math.radians(-62), math.radians(-28)), False)
sketch13.addGeometry(Part.ArcOfCircle(Part.Circle(Vector(0, 0, 0), Vector(0, 0, 1), 10), math.radians(-28), math.radians(0)), False)
sketch13.addGeometry(Part.ArcOfCircle(Part.Circle(Vector(0, 0, 0), Vector(0, 0, 1), 10), math.radians(0), math.radians(28)), False)
sketch13.addGeometry(Part.ArcOfCircle(Part.Circle(Vector(0, 0, 0), Vector(0, 0, 1), 10), math.radians(28), math.radians(62)), False)
sketch13.addGeometry(Part.ArcOfCircle(Part.Circle(Vector(0, 0, 0), Vector(0, 0, 1), 10), math.radians(62), math.radians(118)), False)
sketch13.addGeometry(Part.ArcOfCircle(Part.Circle(Vector(0, 0, 0), Vector(0, 0, 1), 10), math.radians(118), math.radians(152)), False)
sketch13.addConstraint(Sketcher.Constraint("Tangent", 0, 2, 1, 1))
sketch13.addConstraint(Sketcher.Constraint("Tangent", 1, 2, 2, 1))
sketch13.addConstraint(Sketcher.Constraint("Tangent", 2, 2, 3, 1))
sketch13.addConstraint(Sketcher.Constraint("Tangent", 3, 2, 4, 1))
sketch13.addConstraint(Sketcher.Constraint("Tangent", 4, 2, 5, 1))
sketch13.addConstraint(Sketcher.Constraint("Tangent", 5, 2, 6, 1))
sketch13.addConstraint(Sketcher.Constraint("Tangent", 6, 2, 7, 1))
sketch13.addConstraint(Sketcher.Constraint("Tangent", 7, 2, 8, 1))
sketch13.addConstraint(Sketcher.Constraint("Tangent", 8, 2, 0, 1))
sketch13.addConstraint(Sketcher.Constraint("Coincident", 0, 3, -1, 1))
sketch13.addConstraint(Sketcher.Constraint("Coincident", 2, 3, -1, 1))
sketch13.addConstraint(Sketcher.Constraint("Coincident", 4, 3, -1, 1))
sketch13.addConstraint(Sketcher.Constraint("Coincident", 6, 3, -1, 1))
sketch13.addConstraint(Sketcher.Constraint("PointOnObject", 4, 2, -1))
sketch13.addConstraint(Sketcher.Constraint("Horizontal", 1, 2, 2, 2))
sketch13.addConstraint(Sketcher.Constraint("Horizontal", 0, 2, 3, 2))
sketch13.addConstraint(Sketcher.Constraint("Horizontal", 6, 2, 7, 2))
sketch13.addConstraint(Sketcher.Constraint("Horizontal", 5, 2, 8, 2))
sketch13.addConstraint(Sketcher.Constraint("Vertical", 3, 2, 5, 2))
sketch13.addConstraint(Sketcher.Constraint("Vertical", 2, 2, 6, 2))
sketch13.addConstraint(Sketcher.Constraint("Radius", 0, 10.5))
sketch13.addConstraint(Sketcher.Constraint("DistanceY", 0, 2, -1, 1, 5.0))
sketch13.addConstraint(Sketcher.Constraint("DistanceX", 1, 2, -1, 1, 5.0))
sketch13.setExpression("Constraints[20]", "Params.sketch13_radius")
pad13 = doc.addObject("PartDesign::Pad", "Pad012")
body.addObject(pad13)
pad13.Profile = sketch13
pad13.Type = "TwoLengths"
pad13.setExpression("Length", "Params.pad13_length")
pad13.setExpression("Length2", "Params.pad13_length2")

# Sketch on XY plane
sketch14 = doc.addObject("Sketcher::SketchObject", "Sketch013")
body.addObject(sketch14)
sketch14.AttachmentSupport = (doc.XY_Plane, [""])
sketch14.MapMode = "FlatFace"
sketch14.addGeometry(Part.ArcOfCircle(Part.Circle(Vector(0, 0, 0), Vector(0, 0, 1), 7.5), math.radians(48), math.radians(132)), False)
sketch14.addGeometry(Part.ArcOfCircle(Part.Circle(Vector(0, 0, 0), Vector(0, 0, 1), 7.5), math.radians(132.16), math.radians(137.84)), False)
sketch14.addGeometry(Part.ArcOfCircle(Part.Circle(Vector(0, 0, 0), Vector(0, 0, 1), 7.5), math.radians(138), math.radians(222)), False)
sketch14.addGeometry(Part.ArcOfCircle(Part.Circle(Vector(0, 0, 0), Vector(0, 0, 1), 7.5), math.radians(-137.84), math.radians(-132.16)), False)
sketch14.addGeometry(Part.ArcOfCircle(Part.Circle(Vector(0, 0, 0), Vector(0, 0, 1), 7.5), math.radians(-132), math.radians(-48)), False)
sketch14.addGeometry(Part.ArcOfCircle(Part.Circle(Vector(0, 0, 0), Vector(0, 0, 1), 7.5), math.radians(-47.84), math.radians(-42.16)), False)
sketch14.addGeometry(Part.ArcOfCircle(Part.Circle(Vector(0, 0, 0), Vector(0, 0, 1), 7.5), math.radians(-42), math.radians(0)), False)
sketch14.addGeometry(Part.ArcOfCircle(Part.Circle(Vector(0, 0, 0), Vector(0, 0, 1), 7.5), math.radians(0), math.radians(42)), False)
sketch14.addGeometry(Part.ArcOfCircle(Part.Circle(Vector(0, 0, 0), Vector(0, 0, 1), 7.5), math.radians(42.16), math.radians(47.84)), False)
sketch14.addConstraint(Sketcher.Constraint("Tangent", 0, 2, 1, 1))
sketch14.addConstraint(Sketcher.Constraint("Tangent", 1, 2, 2, 1))
sketch14.addConstraint(Sketcher.Constraint("Tangent", 2, 2, 3, 1))
sketch14.addConstraint(Sketcher.Constraint("Tangent", 3, 2, 4, 1))
sketch14.addConstraint(Sketcher.Constraint("Tangent", 4, 2, 5, 1))
sketch14.addConstraint(Sketcher.Constraint("Tangent", 5, 2, 6, 1))
sketch14.addConstraint(Sketcher.Constraint("Tangent", 6, 2, 7, 1))
sketch14.addConstraint(Sketcher.Constraint("Tangent", 7, 2, 8, 1))
sketch14.addConstraint(Sketcher.Constraint("Tangent", 8, 2, 0, 1))
sketch14.addConstraint(Sketcher.Constraint("Coincident", 0, 3, -1, 1))
sketch14.addConstraint(Sketcher.Constraint("Coincident", 2, 3, -1, 1))
sketch14.addConstraint(Sketcher.Constraint("Coincident", 4, 3, -1, 1))
sketch14.addConstraint(Sketcher.Constraint("Coincident", 6, 3, -1, 1))
sketch14.addConstraint(Sketcher.Constraint("PointOnObject", 6, 2, -1))
sketch14.addConstraint(Sketcher.Constraint("Horizontal", 3, 2, 4, 2))
sketch14.addConstraint(Sketcher.Constraint("Horizontal", 2, 2, 5, 2))
sketch14.addConstraint(Sketcher.Constraint("Horizontal", 1, 2, 7, 2))
sketch14.addConstraint(Sketcher.Constraint("Horizontal", 0, 2, 8, 2))
sketch14.addConstraint(Sketcher.Constraint("Vertical", 1, 2, 2, 2))
sketch14.addConstraint(Sketcher.Constraint("Vertical", 0, 2, 3, 2))
sketch14.addConstraint(Sketcher.Constraint("Radius", 0, 7.45))
sketch14.addConstraint(Sketcher.Constraint("DistanceX", 0, 2, -1, 1, 5.0))
sketch14.addConstraint(Sketcher.Constraint("DistanceY", -1, 1, 1, 2, 5.0))
sketch14.setExpression("Constraints[20]", "Params.sketch14_radius")
pad14 = doc.addObject("PartDesign::Pad", "Pad013")
body.addObject(pad14)
pad14.Profile = sketch14
pad14.setExpression("Length", "Params.pad14_length")

doc.recompute()
